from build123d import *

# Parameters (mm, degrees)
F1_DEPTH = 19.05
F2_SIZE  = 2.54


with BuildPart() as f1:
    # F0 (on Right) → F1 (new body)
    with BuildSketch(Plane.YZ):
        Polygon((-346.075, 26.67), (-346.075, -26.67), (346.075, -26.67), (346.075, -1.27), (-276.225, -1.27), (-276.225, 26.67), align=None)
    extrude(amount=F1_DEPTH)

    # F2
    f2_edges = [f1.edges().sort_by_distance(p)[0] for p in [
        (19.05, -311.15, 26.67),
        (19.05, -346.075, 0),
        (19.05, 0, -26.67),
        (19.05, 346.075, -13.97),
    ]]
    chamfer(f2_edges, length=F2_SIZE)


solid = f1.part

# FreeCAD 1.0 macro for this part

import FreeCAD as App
import Part
import Sketcher
from FreeCAD import Vector
Q = App.Units.Quantity


def edges_at(feature, points):
    """Names of the edges that pass closest to the given points."""
    edges = feature.Shape.Edges
    near = lambda p: min(range(len(edges)), key=lambda i: edges[i].distToShape(Part.Vertex(*p))[0])
    return sorted({f"Edge{near(p) + 1}" for p in points})


def add_polygon(sketch, points):
    """Adds a closed chain of lines whose ends are joined by coincident constraints."""
    first, n = sketch.GeometryCount, len(points)
    for a, b in zip(points, points[1:] + points[:1]):
        sketch.addGeometry(Part.LineSegment(App.Vector(*a, 0), App.Vector(*b, 0)), False)
    for i in range(n):
        sketch.addConstraint(Sketcher.Constraint("Coincident", first + i, 2, first + (i + 1) % n, 1))

doc = App.newDocument("Part")
body = doc.addObject("PartDesign::Body", "Body")

# Sketch on YZ plane
sketch1 = doc.addObject("Sketcher::SketchObject", "Sketch")
body.addObject(sketch1)
sketch1.AttachmentSupport = (doc.YZ_Plane, [""])
sketch1.MapMode = "FlatFace"
add_polygon(sketch1, [(-346.075, 26.67), (-346.075, -26.67), (346.075, -26.67), (346.075, -1.27), (-276.225, -1.27), (-276.225, 26.67)])  # lines 0-5
sketch1.addConstraint(Sketcher.Constraint("Vertical", 0))
sketch1.addConstraint(Sketcher.Constraint("Horizontal", 1))
sketch1.addConstraint(Sketcher.Constraint("Vertical", 2))
sketch1.addConstraint(Sketcher.Constraint("Horizontal", 3))
sketch1.addConstraint(Sketcher.Constraint("Vertical", 4))
sketch1.addConstraint(Sketcher.Constraint("Horizontal", 5))
sketch1.addConstraint(Sketcher.Constraint("Symmetric", 1, 2, 5, 2, -1, 1))
sketch1.addConstraint(Sketcher.Constraint("DistanceY", 2, 1, 2, 2, Q("1 in")))
sketch1.addConstraint(Sketcher.Constraint("DistanceX", 3, 2, 3, 1, Q("24.5 in")))
sketch1.addConstraint(Sketcher.Constraint("DistanceY", 0, 2, 0, 1, Q("2.1 in")))
sketch1.addConstraint(Sketcher.Constraint("DistanceX", 1, 1, 1, 2, Q("27.25 in")))
pad1 = doc.addObject("PartDesign::Pad", "Pad")
body.addObject(pad1)
pad1.Profile = sketch1
pad1.Length = Q("0.75 in")
doc.recompute()

chamfer = doc.addObject("PartDesign::Chamfer", "Chamfer")
body.addObject(chamfer)
chamfer.Base = (pad1, edges_at(pad1, [
    (19.05, -311.15, 26.67),
    (19.05, -346.075, 0),
    (19.05, 0, -26.67),
    (19.05, 346.075, -13.97),
]))
chamfer.Size = Q("0.1 in")

doc.recompute()
